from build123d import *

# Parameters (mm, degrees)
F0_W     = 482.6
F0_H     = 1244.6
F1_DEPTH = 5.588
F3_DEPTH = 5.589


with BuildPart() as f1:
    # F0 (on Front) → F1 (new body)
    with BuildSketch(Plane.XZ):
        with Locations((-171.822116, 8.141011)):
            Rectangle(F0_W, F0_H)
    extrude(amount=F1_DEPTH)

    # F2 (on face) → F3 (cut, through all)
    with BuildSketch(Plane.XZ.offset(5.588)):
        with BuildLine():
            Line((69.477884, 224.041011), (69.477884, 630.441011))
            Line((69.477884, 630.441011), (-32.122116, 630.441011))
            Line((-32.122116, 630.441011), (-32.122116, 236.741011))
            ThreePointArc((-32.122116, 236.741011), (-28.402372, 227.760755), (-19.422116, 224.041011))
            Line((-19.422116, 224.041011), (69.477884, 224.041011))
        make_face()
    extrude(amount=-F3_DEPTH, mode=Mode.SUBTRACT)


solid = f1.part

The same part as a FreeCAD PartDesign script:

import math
import FreeCAD as App
import Part
import Sketcher
from FreeCAD import Vector
Q = App.Units.Quantity


def add_polygon(sketch, points):
    """Adds a closed chain of lines whose ends are joined by coincident constraints."""
    first, n = sketch.GeometryCount, len(points)
    for a, b in zip(points, points[1:] + points[:1]):
        sketch.addGeometry(Part.LineSegment(App.Vector(*a, 0), App.Vector(*b, 0)), False)
    for i in range(n):
        sketch.addConstraint(Sketcher.Constraint("Coincident", first + i, 2, first + (i + 1) % n, 1))

doc = App.newDocument("Part")
params = doc.addObject("Spreadsheet::Sheet", "Params")
for row, (alias, value) in enumerate([
    ("sketch1_width", "19 in"),
    ("sketch1_height", "49 in"),
    ("pad1_length", "0.22 in"),
    ("sketch2_radius", "0.5 in"),
    ("sketch2_width", "4 in"),
    ("sketch2_height", "16 in"),
], start=1):
    params.set(f"A{row}", alias)
    params.set(f"B{row}", "=" + value)
    params.setAlias(f"B{row}", alias)

body = doc.addObject("PartDesign::Body", "Body")

# Sketch on XZ plane
sketch1 = doc.addObject("Sketcher::SketchObject", "Sketch")
body.addObject(sketch1)
sketch1.AttachmentSupport = (doc.XZ_Plane, [""])
sketch1.MapMode = "FlatFace"
add_polygon(sketch1, [(-413, 630), (-413, -614), (69, -614), (69, 630)])  # lines 0-3
sketch1.addConstraint(Sketcher.Constraint("Vertical", 0))
sketch1.addConstraint(Sketcher.Constraint("Horizontal", 1))
sketch1.addConstraint(Sketcher.Constraint("Vertical", 2))
sketch1.addConstraint(Sketcher.Constraint("Horizontal", 3))
sketch1.addConstraint(Sketcher.Constraint("DistanceX", 1, 1, 1, 2, Q("19 in")))
sketch1.addConstraint(Sketcher.Constraint("DistanceY", 0, 2, 0, 1, Q("49 in")))
sketch1.addConstraint(Sketcher.Constraint("DistanceY", 0, 2, -1, 1, Q("614.158989 mm")))
sketch1.addConstraint(Sketcher.Constraint("DistanceX", 0, 2, -1, 1, Q("413.122116 mm")))
sketch1.setExpression("Constraints[8]", "Params.sketch1_width")
sketch1.setExpression("Constraints[9]", "Params.sketch1_height")
pad1 = doc.addObject("PartDesign::Pad", "Pad")
body.addObject(pad1)
pad1.Profile = sketch1
pad1.setExpression("Length", "Params.pad1_length")

# Sketch on XZ plane
sketch2 = doc.addObject("Sketcher::SketchObject", "Sketch001")
body.addObject(sketch2)
sketch2.AttachmentSupport = (doc.XZ_Plane, [""])
sketch2.MapMode = "FlatFace"
sketch2.AttachmentOffset = App.Placement(Vector(0, 0, 0.22 * 25.4), App.Rotation())
sketch2.addGeometry(Part.LineSegment(Vector(69, 224, 0), Vector(69, 630, 0)), False)
sketch2.addGeometry(Part.LineSegment(Vector(69, 630, 0), Vector(-32, 630, 0)), False)
sketch2.addGeometry(Part.LineSegment(Vector(-32, 630, 0), Vector(-32, 237, 0)), False)
sketch2.addGeometry(Part.ArcOfCircle(Part.Circle(Vector(-19, 237, 0), Vector(0, 0, 1), 13), math.radians(-180), math.radians(-90)), False)
sketch2.addGeometry(Part.LineSegment(Vector(-19, 224, 0), Vector(69, 224, 0)), False)
sketch2.addConstraint(Sketcher.Constraint("Coincident", 0, 2, 1, 1))
sketch2.addConstraint(Sketcher.Constraint("Coincident", 1, 2, 2, 1))
sketch2.addConstraint(Sketcher.Constraint("Tangent", 2, 2, 3, 1))
sketch2.addConstraint(Sketcher.Constraint("Tangent", 3, 2, 4, 1))
sketch2.addConstraint(Sketcher.Constraint("Coincident", 4, 2, 0, 1))
sketch2.addConstraint(Sketcher.Constraint("Vertical", 0))
sketch2.addConstraint(Sketcher.Constraint("Horizontal", 1))
sketch2.addConstraint(Sketcher.Constraint("Vertical", 2))
sketch2.addConstraint(Sketcher.Constraint("Horizontal", 4))
sketch2.addConstraint(Sketcher.Constraint("Radius", 3, Q("0.5 in")))
sketch2.addConstraint(Sketcher.Constraint("DistanceX", 1, 2, 1, 1, Q("4 in")))
sketch2.addConstraint(Sketcher.Constraint("DistanceY", 0, 1, 0, 2, Q("16 in")))
sketch2.addConstraint(Sketcher.Constraint("DistanceY", -1, 1, 3, 3, Q("236.741011 mm")))
sketch2.addConstraint(Sketcher.Constraint("DistanceX", 3, 3, -1, 1, Q("19.422116 mm")))
sketch2.setExpression("Constraints[9]", "Params.sketch2_radius")
sketch2.setExpression("Constraints[10]", "Params.sketch2_width")
sketch2.setExpression("Constraints[11]", "Params.sketch2_height")
pocket1 = doc.addObject("PartDesign::Pocket", "Pocket")
body.addObject(pocket1)
pocket1.Profile = sketch2
pocket1.Type = "ThroughAll"

doc.recompute()
